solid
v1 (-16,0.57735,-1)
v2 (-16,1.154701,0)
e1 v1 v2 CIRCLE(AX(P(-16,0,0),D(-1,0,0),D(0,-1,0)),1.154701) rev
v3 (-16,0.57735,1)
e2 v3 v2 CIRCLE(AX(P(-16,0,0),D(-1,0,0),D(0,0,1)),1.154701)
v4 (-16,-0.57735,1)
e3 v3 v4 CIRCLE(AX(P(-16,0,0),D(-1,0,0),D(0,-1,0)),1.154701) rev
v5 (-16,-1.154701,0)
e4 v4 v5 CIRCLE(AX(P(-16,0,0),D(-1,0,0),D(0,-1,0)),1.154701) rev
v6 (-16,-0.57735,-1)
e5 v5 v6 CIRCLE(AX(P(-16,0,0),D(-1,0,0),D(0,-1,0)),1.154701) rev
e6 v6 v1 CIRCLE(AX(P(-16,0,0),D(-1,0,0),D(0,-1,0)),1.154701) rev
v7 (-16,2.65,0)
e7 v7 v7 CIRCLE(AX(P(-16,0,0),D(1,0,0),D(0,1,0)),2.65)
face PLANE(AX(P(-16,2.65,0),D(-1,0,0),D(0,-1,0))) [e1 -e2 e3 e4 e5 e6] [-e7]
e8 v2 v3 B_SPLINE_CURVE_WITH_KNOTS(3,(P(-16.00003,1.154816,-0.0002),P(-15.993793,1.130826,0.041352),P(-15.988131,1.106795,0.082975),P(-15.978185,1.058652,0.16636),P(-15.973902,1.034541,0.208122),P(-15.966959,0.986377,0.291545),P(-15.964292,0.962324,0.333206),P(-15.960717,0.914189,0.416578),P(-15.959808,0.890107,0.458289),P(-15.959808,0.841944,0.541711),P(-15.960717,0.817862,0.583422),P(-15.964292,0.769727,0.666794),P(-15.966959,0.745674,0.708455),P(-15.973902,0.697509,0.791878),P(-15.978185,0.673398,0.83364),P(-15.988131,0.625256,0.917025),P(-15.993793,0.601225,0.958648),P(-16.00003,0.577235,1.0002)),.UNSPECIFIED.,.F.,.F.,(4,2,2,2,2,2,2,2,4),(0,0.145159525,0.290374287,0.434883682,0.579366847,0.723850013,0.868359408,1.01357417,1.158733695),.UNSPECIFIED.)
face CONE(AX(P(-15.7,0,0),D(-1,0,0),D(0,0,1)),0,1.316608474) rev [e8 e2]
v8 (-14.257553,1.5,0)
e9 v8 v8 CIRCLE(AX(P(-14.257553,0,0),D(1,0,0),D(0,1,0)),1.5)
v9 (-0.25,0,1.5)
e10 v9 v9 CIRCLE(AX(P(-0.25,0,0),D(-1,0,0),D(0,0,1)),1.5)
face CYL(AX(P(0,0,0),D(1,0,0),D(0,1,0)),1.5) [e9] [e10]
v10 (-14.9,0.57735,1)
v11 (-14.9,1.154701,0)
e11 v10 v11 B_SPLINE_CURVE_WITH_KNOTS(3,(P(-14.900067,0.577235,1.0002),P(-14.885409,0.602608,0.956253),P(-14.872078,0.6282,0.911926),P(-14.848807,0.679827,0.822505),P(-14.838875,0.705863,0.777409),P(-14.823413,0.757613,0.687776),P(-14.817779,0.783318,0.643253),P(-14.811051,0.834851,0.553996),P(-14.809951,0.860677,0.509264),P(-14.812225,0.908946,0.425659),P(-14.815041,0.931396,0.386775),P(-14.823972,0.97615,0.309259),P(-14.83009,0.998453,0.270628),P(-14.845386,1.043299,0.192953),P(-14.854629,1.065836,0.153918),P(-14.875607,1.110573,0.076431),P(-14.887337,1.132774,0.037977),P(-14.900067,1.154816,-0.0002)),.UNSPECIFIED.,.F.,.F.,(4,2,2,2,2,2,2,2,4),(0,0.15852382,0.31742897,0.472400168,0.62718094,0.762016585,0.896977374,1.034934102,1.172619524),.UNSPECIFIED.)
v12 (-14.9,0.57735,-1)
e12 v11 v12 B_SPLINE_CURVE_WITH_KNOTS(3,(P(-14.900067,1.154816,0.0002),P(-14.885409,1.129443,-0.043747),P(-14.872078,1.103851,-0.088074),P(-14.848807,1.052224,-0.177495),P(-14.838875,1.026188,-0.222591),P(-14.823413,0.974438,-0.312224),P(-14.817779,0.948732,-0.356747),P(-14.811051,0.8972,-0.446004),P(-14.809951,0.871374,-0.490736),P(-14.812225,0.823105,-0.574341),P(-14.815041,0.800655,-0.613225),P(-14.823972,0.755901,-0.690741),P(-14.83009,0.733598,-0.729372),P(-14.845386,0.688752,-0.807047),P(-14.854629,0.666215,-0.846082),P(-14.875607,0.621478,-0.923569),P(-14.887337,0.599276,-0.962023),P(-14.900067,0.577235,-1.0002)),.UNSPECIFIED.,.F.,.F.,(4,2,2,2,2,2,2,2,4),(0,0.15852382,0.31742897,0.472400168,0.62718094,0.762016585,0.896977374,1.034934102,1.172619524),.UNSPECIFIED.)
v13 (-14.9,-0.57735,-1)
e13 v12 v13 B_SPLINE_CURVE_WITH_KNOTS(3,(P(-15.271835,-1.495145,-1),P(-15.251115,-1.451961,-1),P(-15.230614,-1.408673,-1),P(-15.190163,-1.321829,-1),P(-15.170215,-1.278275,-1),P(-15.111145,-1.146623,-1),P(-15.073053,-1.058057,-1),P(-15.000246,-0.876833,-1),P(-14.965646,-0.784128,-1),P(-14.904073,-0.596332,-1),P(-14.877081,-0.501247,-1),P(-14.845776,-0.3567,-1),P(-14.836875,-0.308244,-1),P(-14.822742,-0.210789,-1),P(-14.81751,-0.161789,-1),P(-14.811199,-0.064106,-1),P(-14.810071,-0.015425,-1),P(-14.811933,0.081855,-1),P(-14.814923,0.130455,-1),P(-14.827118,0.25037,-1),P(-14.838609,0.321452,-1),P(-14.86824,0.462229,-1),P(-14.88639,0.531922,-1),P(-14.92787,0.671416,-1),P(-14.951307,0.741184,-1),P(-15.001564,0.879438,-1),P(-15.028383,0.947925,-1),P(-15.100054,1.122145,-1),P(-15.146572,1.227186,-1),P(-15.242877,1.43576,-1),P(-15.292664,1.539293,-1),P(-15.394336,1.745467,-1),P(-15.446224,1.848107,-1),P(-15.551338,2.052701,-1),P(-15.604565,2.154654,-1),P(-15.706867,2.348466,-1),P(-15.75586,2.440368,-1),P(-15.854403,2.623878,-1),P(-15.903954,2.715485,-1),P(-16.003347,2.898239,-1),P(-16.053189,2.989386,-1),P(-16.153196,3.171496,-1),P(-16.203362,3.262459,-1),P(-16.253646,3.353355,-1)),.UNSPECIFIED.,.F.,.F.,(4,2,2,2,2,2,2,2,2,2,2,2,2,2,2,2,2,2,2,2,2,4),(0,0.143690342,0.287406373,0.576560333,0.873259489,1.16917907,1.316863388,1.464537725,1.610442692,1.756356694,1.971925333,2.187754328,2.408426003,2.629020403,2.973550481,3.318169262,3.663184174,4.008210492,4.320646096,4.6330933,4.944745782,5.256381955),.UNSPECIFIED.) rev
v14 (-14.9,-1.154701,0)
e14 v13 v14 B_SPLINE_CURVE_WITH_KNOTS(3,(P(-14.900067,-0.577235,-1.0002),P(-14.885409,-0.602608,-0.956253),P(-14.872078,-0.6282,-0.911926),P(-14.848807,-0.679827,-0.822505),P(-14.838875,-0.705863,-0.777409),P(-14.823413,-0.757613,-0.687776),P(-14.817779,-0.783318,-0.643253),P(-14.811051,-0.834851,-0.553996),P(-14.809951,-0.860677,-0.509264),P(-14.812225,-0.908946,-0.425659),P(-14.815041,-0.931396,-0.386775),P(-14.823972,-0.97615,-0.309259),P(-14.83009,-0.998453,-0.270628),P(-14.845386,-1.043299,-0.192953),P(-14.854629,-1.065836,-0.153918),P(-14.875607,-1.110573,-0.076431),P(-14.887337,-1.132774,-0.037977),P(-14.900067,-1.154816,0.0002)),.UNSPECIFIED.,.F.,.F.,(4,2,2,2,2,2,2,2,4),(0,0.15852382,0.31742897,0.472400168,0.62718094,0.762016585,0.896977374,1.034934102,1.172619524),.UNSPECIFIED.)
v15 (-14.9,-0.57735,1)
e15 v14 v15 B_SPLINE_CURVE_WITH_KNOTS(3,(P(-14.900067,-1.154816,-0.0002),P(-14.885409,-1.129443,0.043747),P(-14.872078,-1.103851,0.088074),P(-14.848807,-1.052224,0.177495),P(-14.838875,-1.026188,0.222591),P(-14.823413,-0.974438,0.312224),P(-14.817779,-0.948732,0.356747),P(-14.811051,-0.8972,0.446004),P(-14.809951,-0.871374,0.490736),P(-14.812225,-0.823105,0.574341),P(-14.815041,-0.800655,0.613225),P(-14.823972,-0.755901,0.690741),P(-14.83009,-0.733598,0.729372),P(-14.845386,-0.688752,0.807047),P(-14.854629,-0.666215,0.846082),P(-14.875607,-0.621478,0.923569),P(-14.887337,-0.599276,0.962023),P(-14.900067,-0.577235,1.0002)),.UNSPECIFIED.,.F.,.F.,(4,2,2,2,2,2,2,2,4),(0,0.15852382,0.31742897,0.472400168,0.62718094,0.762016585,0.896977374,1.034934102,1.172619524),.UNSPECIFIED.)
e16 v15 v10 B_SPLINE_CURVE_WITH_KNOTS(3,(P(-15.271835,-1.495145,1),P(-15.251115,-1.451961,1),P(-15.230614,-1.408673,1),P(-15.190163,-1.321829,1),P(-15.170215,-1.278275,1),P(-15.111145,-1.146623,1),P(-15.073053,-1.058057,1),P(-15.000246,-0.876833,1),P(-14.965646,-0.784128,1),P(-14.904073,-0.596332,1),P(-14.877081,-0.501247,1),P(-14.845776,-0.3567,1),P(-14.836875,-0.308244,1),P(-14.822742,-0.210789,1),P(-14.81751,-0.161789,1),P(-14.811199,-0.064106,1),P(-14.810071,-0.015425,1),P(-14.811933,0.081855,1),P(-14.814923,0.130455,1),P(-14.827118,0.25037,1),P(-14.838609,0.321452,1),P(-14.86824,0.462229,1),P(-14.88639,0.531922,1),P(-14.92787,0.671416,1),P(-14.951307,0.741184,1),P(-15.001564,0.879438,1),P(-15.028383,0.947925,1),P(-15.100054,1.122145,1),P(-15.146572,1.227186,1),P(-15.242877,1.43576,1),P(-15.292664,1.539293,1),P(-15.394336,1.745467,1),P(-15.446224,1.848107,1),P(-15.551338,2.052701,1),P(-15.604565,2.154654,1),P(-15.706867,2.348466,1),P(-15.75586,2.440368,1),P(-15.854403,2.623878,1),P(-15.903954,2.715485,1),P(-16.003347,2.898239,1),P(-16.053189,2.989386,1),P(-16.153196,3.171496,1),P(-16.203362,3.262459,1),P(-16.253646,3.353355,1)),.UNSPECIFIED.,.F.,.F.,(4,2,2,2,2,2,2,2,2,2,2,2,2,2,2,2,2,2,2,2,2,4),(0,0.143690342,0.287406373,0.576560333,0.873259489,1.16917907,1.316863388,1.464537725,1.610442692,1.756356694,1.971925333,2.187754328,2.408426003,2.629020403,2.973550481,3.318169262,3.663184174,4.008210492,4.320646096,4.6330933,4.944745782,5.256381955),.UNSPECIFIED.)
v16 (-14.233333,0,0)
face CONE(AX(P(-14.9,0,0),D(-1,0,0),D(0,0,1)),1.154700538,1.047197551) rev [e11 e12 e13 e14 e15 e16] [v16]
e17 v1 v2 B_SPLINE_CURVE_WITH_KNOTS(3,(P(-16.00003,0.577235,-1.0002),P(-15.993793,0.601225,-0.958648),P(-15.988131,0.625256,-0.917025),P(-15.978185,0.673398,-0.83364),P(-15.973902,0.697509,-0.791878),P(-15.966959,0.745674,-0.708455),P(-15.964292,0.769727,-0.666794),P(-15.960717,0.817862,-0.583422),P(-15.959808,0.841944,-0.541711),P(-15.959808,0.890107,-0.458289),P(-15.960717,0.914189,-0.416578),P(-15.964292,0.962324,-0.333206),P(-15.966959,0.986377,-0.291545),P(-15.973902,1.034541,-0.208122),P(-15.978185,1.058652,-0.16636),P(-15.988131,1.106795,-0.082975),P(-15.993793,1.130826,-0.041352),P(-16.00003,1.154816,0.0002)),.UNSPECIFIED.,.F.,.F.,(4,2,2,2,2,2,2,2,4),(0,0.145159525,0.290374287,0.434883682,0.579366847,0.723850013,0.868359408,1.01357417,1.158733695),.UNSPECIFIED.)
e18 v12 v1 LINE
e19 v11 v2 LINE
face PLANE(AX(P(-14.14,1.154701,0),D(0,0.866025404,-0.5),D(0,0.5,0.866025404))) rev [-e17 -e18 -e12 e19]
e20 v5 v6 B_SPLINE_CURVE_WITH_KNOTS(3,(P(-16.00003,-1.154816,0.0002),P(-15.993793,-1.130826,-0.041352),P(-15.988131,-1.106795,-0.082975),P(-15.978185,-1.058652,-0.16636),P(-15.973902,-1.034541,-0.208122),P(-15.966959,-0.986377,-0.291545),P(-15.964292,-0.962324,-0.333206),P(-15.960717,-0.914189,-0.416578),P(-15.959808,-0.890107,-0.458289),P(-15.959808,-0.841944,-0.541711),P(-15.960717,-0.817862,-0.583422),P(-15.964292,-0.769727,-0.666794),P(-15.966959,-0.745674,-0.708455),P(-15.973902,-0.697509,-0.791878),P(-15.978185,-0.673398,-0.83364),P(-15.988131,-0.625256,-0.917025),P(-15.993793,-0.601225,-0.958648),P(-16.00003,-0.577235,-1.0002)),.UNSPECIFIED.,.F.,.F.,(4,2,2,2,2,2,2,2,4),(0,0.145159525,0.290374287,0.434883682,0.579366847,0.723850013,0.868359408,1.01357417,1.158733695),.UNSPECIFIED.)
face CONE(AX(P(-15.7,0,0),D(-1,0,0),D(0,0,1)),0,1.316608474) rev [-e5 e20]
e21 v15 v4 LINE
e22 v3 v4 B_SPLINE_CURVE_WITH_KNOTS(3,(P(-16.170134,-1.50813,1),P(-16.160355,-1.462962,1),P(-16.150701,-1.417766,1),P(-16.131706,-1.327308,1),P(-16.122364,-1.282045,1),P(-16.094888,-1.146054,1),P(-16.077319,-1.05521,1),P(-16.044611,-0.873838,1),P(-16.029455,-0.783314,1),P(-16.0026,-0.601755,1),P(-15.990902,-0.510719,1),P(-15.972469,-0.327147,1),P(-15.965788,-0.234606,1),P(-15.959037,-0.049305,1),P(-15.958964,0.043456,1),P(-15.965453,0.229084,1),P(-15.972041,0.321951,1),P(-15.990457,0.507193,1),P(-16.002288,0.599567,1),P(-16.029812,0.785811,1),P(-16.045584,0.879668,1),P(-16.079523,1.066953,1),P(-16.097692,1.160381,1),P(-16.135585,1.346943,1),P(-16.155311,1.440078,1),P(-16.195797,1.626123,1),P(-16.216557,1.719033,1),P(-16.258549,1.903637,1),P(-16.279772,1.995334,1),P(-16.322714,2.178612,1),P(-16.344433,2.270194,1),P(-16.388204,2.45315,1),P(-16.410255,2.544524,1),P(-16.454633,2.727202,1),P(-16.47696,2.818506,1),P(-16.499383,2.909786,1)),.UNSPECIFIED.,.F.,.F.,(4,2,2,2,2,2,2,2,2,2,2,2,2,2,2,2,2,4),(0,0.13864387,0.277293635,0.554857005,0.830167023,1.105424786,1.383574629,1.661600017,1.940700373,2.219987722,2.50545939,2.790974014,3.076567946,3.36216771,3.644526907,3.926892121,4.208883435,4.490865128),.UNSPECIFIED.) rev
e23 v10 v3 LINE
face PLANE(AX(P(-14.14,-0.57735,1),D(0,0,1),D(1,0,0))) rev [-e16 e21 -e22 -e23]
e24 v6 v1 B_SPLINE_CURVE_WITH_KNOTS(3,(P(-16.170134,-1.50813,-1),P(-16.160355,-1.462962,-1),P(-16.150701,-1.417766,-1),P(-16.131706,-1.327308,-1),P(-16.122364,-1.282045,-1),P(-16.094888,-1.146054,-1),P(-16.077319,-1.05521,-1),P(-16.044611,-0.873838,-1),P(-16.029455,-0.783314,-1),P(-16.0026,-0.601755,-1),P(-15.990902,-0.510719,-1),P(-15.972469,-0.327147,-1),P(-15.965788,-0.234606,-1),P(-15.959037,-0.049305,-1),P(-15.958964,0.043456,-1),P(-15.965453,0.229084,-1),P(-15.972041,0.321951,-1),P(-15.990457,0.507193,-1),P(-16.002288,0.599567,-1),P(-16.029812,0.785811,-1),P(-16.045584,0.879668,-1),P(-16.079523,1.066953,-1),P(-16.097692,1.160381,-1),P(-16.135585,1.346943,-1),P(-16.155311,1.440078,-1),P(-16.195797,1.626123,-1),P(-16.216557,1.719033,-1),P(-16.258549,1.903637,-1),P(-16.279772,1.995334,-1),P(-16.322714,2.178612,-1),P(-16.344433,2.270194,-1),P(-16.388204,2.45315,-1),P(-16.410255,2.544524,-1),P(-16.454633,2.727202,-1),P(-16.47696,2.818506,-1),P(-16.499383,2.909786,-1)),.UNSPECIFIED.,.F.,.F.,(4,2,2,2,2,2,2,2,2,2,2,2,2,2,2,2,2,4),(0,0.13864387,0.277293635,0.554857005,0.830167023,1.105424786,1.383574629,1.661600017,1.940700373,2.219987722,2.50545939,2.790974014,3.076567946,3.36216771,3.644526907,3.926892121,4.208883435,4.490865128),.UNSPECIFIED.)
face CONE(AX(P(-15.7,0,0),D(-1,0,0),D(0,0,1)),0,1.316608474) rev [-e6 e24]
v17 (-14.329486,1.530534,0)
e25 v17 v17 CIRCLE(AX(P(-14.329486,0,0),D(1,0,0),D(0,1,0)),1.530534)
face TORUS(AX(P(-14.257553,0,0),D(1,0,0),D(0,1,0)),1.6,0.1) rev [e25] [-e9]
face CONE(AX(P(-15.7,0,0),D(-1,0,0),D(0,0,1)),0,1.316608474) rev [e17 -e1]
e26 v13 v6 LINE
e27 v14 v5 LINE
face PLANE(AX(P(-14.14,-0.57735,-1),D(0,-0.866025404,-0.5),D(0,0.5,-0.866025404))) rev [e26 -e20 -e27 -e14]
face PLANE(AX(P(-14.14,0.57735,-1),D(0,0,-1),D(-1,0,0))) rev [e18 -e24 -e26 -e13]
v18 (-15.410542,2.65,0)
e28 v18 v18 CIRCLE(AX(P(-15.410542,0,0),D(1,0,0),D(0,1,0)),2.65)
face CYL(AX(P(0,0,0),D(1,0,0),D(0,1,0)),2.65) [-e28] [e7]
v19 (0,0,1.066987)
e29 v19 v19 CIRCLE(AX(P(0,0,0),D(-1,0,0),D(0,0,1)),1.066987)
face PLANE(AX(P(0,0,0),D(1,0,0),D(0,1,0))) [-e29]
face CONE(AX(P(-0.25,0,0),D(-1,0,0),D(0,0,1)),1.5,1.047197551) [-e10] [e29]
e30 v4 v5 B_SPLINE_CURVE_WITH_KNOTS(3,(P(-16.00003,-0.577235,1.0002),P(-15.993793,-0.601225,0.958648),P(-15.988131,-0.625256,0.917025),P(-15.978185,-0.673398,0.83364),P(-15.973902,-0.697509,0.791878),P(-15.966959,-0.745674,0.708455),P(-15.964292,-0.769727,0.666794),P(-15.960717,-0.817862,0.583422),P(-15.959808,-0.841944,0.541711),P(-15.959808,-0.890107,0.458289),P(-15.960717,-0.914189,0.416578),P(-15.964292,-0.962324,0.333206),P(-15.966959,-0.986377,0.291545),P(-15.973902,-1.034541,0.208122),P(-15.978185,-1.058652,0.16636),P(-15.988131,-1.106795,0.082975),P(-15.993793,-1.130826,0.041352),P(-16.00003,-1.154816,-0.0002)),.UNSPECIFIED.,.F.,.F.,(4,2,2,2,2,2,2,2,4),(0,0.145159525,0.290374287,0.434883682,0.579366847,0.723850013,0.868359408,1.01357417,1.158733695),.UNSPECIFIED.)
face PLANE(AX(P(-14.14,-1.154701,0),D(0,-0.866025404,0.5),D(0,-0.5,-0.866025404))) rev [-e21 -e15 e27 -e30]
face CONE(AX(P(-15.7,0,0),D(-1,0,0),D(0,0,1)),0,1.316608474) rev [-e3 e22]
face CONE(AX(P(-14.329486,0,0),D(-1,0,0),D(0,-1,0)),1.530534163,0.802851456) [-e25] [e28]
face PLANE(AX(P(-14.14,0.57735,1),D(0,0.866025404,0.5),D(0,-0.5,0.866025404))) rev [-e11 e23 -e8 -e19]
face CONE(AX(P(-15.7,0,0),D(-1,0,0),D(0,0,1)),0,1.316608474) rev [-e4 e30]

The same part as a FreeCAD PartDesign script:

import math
import FreeCAD as App
import Part
import Sketcher
Q = App.Units.Quantity


def add_polygon(sketch, points):
    """Adds a closed chain of lines whose ends are joined by coincident constraints."""
    first, n = sketch.GeometryCount, len(points)
    for a, b in zip(points, points[1:] + points[:1]):
        sketch.addGeometry(Part.LineSegment(App.Vector(*a, 0), App.Vector(*b, 0)), False)
    for i in range(n):
        sketch.addConstraint(Sketcher.Constraint("Coincident", first + i, 2, first + (i + 1) % n, 1))

doc = App.newDocument("Part")
body = doc.addObject("PartDesign::Body", "Body")

# Sketch on XY plane
sketch1 = body.newObject("Sketcher::SketchObject", "Sketch")
sketch1.AttachmentSupport = (doc.getObject("XY_Plane"), [""])
sketch1.MapMode = "FlatFace"
sketch1.addGeometry([
    Part.LineSegment(App.Vector(0, 1.5, 0), App.Vector(-14.257553, 1.5, 0)),  # 0
    Part.ArcOfCircle(Part.Circle(App.Vector(-14.257553, 1.6, 0), App.Vector(0, 0, 1), 0.1), math.radians(-135.999999), math.radians(-90.000001)),  # 1
    Part.LineSegment(App.Vector(-14.329486, 1.530534, 0), App.Vector(-15.410542, 2.65, 0)),  # 2
    Part.LineSegment(App.Vector(-15.410542, 2.65, 0), App.Vector(-16, 2.65, 0)),  # 3
    Part.LineSegment(App.Vector(-16, 2.65, 0), App.Vector(-16, 0, 0)),  # 4
    Part.LineSegment(App.Vector(-16, 0, 0), App.Vector(0, 0, 0)),  # 5
    Part.LineSegment(App.Vector(0, 0, 0), App.Vector(0, 1.5, 0)),  # 6
], False)
sketch1.addConstraint([
    Sketcher.Constraint("Tangent", 0, 2, 1, 2),
    Sketcher.Constraint("Tangent", 1, 1, 2, 1),
    Sketcher.Constraint("Coincident", 2, 2, 3, 1),
    Sketcher.Constraint("Coincident", 3, 2, 4, 1),
    Sketcher.Constraint("Coincident", 4, 2, 5, 1),
    Sketcher.Constraint("Coincident", 5, 2, 6, 1),
    Sketcher.Constraint("Coincident", 6, 2, 0, 1),
    Sketcher.Constraint("Horizontal", 0),
    Sketcher.Constraint("Horizontal", 3),
    Sketcher.Constraint("Vertical", 4),
    Sketcher.Constraint("Horizontal", 5),
    Sketcher.Constraint("Vertical", 6),
    Sketcher.Constraint("Coincident", 5, 2, -1, 1),
    Sketcher.Constraint("Radius", 1, Q("0.1 mm")),
    Sketcher.Constraint("DistanceX", 5, 1, 5, 2, Q("16 mm")),
    Sketcher.Constraint("Angle", 2, Q("134 deg")),
    Sketcher.Constraint("DistanceY", 6, 1, 6, 2, Q("1.5 mm")),
    Sketcher.Constraint("DistanceY", 4, 2, 4, 1, Q("2.65 mm")),
    Sketcher.Constraint("DistanceX", 0, 2, 0, 1, Q("14.257553 mm")),
])
revolution = body.newObject("PartDesign::Revolution", "Revolution")
revolution.Profile = sketch1
revolution.ReferenceAxis = (sketch1, ["H_Axis"])
revolution.Angle = 360

# Sketch on YZ plane
sketch2 = body.newObject("Sketcher::SketchObject", "Sketch001")
sketch2.AttachmentSupport = (doc.getObject("YZ_Plane"), [""])
sketch2.MapMode = "FlatFace"
sketch2.AttachmentOffset = App.Placement(App.Vector(0, 0, -16), App.Rotation())
add_polygon(sketch2, [(1.154701, 0), (0.57735, -1), (-0.57735, -1), (-1.154701, 0), (-0.57735, 1), (0.57735, 1)])  # lines 0-5
sketch2.addConstraint([
    Sketcher.Constraint("Horizontal", 1),
    Sketcher.Constraint("Horizontal", 4),
    Sketcher.Constraint("Symmetric", 0, 2, 3, 2, -1, 1),
    Sketcher.Constraint("Symmetric", 2, 2, 5, 2, -1, 1),
    Sketcher.Constraint("PointOnObject", 2, 2, -1),
    Sketcher.Constraint("Parallel", 2, 5),
    Sketcher.Constraint("Vertical", 1, 2, 3, 2),
    Sketcher.Constraint("Angle", 0, Q("-120 deg")),
    Sketcher.Constraint("DistanceY", 0, 2, -1, 1, Q("1 mm")),
    Sketcher.Constraint("DistanceX", 1, 2, 1, 1, Q("1.154701 mm")),
])
pocket1 = body.newObject("PartDesign::Pocket", "Pocket")
pocket1.Profile = sketch2
pocket1.Length = 1.86
pocket1.Reversed = True

# Sketch on XY plane
sketch3 = body.newObject("Sketcher::SketchObject", "Sketch002")
sketch3.AttachmentSupport = (doc.getObject("XY_Plane"), [""])
sketch3.MapMode = "FlatFace"
add_polygon(sketch3, [(-14.9, 1.154701), (-14.233333, 0), (-13.84, 0), (-13.84, 1.154701)])  # lines 0-3
sketch3.addConstraint([
    Sketcher.Constraint("Horizontal", 1),
    Sketcher.Constraint("Vertical", 2),
    Sketcher.Constraint("Horizontal", 3),
    Sketcher.Constraint("PointOnObject", 0, 2, -1),
    Sketcher.Constraint("Angle", 0, Q("-60 deg")),
    Sketcher.Constraint("DistanceX", 3, 2, 3, 1, Q("1.06 mm")),
    Sketcher.Constraint("DistanceX", 3, 2, -1, 1, Q("14.9 mm")),
    Sketcher.Constraint("DistanceY", 2, 1, 2, 2, Q("1.154701 mm")),
])
revolution2 = body.newObject("PartDesign::Revolution", "Revolution001")
revolution2.Profile = sketch3
revolution2.ReferenceAxis = (sketch3, ["H_Axis"])
revolution2.Angle = 360

# Sketch on XY plane
sketch4 = body.newObject("Sketcher::SketchObject", "Sketch003")
sketch4.AttachmentSupport = (doc.getObject("XY_Plane"), [""])
sketch4.MapMode = "FlatFace"
add_polygon(sketch4, [(-16, 1.154701), (-16, 0), (-15.7, 0)])  # lines 0-2
sketch4.addConstraint([
    Sketcher.Constraint("Vertical", 0),
    Sketcher.Constraint("Horizontal", 1),
    Sketcher.Constraint("PointOnObject", 0, 2, -1),
    Sketcher.Constraint("DistanceX", 1, 1, 1, 2, Q("0.3 mm")),
    Sketcher.Constraint("DistanceX", 0, 2, -1, 1, Q("16 mm")),
    Sketcher.Constraint("DistanceY", 0, 2, 0, 1, Q("1.154701 mm")),
])
groove = body.newObject("PartDesign::Groove", "Groove")
groove.Profile = sketch4
groove.ReferenceAxis = (sketch4, ["H_Axis"])
groove.Angle = 360

# Sketch on XY plane
sketch5 = body.newObject("Sketcher::SketchObject", "Sketch004")
sketch5.AttachmentSupport = (doc.getObject("XY_Plane"), [""])
sketch5.MapMode = "FlatFace"
add_polygon(sketch5, [(-0.25, 1.5), (0, 1.066987), (0.25, 1.5)])  # lines 0-2
sketch5.addConstraint([
    Sketcher.Constraint("Horizontal", 2),
    Sketcher.Constraint("PointOnObject", 0, 2, -2),
    Sketcher.Constraint("Equal", 0, 1),
    Sketcher.Constraint("Angle", 0, Q("-60 deg")),
    Sketcher.Constraint("DistanceX", 2, 2, 2, 1, Q("0.5 mm")),
    Sketcher.Constraint("DistanceY", -1, 1, 1, 2, Q("1.5 mm")),
])
groove2 = body.newObject("PartDesign::Groove", "Groove001")
groove2.Profile = sketch5
groove2.ReferenceAxis = (sketch5, ["H_Axis"])
groove2.Angle = 360

doc.recompute()
